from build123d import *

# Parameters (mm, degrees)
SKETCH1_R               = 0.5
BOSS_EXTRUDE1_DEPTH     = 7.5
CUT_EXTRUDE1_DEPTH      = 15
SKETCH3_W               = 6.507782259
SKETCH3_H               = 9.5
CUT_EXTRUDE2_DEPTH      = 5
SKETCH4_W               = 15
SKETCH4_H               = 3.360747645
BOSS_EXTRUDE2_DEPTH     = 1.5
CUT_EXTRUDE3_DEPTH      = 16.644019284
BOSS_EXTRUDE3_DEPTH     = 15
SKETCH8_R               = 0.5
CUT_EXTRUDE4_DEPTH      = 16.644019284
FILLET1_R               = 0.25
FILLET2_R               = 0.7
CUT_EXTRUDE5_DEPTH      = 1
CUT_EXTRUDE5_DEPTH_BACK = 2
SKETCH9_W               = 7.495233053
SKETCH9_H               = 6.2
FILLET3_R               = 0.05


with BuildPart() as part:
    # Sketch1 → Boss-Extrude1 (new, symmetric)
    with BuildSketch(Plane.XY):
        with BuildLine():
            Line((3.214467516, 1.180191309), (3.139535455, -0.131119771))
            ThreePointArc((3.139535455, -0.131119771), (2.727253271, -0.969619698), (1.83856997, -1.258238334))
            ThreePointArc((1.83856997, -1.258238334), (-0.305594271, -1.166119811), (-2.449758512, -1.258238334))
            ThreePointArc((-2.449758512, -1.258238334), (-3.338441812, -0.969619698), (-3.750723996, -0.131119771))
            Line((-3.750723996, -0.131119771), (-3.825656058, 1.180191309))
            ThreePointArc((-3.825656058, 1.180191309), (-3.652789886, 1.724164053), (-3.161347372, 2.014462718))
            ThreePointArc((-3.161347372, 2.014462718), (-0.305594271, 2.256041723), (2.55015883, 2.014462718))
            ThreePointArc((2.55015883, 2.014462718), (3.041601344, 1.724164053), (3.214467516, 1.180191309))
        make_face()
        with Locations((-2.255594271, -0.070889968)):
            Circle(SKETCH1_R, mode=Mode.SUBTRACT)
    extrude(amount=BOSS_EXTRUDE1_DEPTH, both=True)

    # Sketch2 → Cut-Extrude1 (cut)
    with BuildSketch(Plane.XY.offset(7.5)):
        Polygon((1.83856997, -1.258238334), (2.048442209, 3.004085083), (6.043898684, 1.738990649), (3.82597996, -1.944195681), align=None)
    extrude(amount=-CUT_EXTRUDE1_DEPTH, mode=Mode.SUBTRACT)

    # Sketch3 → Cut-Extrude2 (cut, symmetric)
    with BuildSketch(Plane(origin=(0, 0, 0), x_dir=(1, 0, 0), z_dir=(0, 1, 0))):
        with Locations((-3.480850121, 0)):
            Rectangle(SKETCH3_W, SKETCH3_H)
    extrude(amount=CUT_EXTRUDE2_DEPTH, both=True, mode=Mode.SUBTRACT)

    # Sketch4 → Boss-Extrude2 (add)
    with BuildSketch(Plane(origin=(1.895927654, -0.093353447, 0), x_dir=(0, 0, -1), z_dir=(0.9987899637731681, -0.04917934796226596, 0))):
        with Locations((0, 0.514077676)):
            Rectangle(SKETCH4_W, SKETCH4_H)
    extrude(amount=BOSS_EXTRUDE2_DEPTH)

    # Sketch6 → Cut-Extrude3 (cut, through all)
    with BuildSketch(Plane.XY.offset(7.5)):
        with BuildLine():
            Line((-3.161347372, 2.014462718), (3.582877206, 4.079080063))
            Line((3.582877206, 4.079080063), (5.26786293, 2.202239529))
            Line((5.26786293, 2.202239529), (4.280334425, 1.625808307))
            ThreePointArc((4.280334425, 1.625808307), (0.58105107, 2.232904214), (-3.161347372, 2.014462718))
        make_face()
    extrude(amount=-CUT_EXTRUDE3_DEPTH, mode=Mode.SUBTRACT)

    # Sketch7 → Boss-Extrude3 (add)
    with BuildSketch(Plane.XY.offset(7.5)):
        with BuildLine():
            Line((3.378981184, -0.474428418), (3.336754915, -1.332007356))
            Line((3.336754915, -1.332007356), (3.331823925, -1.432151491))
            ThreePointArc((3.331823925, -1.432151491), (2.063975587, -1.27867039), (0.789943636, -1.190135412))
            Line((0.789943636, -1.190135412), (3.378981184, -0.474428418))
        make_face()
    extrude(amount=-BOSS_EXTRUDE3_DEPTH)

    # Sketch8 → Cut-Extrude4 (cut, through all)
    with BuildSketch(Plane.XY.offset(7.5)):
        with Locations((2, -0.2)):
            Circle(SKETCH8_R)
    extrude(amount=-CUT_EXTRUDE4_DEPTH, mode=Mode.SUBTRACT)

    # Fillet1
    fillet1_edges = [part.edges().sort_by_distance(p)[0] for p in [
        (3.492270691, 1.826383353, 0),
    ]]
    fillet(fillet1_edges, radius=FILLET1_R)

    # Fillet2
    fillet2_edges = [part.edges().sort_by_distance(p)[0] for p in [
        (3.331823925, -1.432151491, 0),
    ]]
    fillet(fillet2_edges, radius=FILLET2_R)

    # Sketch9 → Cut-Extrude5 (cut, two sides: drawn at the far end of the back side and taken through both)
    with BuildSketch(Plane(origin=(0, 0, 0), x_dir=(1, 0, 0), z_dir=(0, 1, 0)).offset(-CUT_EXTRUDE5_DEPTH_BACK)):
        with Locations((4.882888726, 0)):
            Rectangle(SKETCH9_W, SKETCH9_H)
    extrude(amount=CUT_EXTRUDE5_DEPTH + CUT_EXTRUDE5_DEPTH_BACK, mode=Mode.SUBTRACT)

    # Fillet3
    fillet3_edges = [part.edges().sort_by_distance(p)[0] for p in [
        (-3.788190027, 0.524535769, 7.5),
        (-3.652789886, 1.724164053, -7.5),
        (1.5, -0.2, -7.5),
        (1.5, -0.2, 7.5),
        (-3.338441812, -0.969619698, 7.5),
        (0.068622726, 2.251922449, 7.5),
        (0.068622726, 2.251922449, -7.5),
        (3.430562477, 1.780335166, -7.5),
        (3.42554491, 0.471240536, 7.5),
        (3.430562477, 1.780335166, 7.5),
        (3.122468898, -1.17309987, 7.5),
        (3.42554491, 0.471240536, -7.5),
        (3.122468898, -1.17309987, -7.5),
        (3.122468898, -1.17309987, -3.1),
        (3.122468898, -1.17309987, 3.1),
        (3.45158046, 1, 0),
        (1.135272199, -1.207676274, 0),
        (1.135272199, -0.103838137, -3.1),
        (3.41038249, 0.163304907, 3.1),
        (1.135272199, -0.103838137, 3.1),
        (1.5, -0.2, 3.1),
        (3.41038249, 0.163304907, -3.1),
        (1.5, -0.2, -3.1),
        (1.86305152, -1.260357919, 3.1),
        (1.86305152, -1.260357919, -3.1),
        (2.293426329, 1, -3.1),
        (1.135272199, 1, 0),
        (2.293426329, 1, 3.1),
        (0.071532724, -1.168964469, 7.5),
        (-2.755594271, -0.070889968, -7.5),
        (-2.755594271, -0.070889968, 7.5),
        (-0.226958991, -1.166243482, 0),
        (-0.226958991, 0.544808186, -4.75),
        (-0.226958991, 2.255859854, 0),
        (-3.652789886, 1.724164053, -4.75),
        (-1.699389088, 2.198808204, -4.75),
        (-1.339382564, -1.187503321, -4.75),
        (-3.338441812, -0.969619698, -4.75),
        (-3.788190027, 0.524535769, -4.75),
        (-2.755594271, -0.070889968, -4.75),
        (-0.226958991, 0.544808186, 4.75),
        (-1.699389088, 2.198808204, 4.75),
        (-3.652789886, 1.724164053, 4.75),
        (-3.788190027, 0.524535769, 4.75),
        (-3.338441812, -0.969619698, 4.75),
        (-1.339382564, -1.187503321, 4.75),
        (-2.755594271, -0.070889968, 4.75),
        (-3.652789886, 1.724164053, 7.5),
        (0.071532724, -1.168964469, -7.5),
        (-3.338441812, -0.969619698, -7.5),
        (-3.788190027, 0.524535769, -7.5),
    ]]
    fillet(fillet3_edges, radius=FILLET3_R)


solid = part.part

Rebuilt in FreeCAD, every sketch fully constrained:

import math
import FreeCAD as App
import Part
import Sketcher


def edges_at(feature, points):
    """Names of the edges that pass closest to the given points."""
    edges = feature.Shape.Edges
    near = lambda p: min(range(len(edges)), key=lambda i: edges[i].distToShape(Part.Vertex(*p))[0])
    return sorted({f"Edge{near(p) + 1}" for p in points})

doc = App.newDocument("Part")
body = doc.addObject("PartDesign::Body", "Body")

# Sketch on XY plane
sketch1 = doc.addObject("Sketcher::SketchObject", "Sketch")
body.addObject(sketch1)
sketch1.AttachmentSupport = (doc.XY_Plane, [""])
sketch1.MapMode = "FlatFace"
sketch1.addGeometry([
    Part.LineSegment(App.Vector(3.139535, -0.13112, 0), App.Vector(3.214468, 1.180191, 0)),  # 0
    Part.ArcOfCircle(Part.Circle(App.Vector(2.41577, 1.225831, 0), App.Vector(0, 0, 1), 0.8), math.radians(-3.270488), math.radians(80.329289)),  # 1
    Part.ArcOfCircle(Part.Circle(App.Vector(-0.305594, -14.743958, 0), App.Vector(0, 0, 1), 17), math.radians(80.329289), math.radians(99.670711)),  # 2
    Part.ArcOfCircle(Part.Circle(App.Vector(-3.026959, 1.225831, 0), App.Vector(0, 0, 1), 0.8), math.radians(99.670711), math.radians(183.270488)),  # 3
    Part.LineSegment(App.Vector(-3.825656, 1.180191, 0), App.Vector(-3.750724, -0.13112, 0)),  # 4
    Part.ArcOfCircle(Part.Circle(App.Vector(-2.552678, -0.06266, 0), App.Vector(0, 0, 1), 1.2), math.radians(-176.729512), math.radians(-85.079893)),  # 5
    Part.ArcOfCircle(Part.Circle(App.Vector(-0.305594, -26.16612, 0), App.Vector(0, 0, 1), 25), math.radians(85.079893), math.radians(94.920107)),  # 6
    Part.ArcOfCircle(Part.Circle(App.Vector(1.94149, -0.06266, 0), App.Vector(0, 0, 1), 1.2), math.radians(-94.920107), math.radians(-3.270488)),  # 7
    Part.Circle(App.Vector(-2.255594, -0.07089, 0), App.Vector(0, 0, 1), 0.5),  # 8
], False)
sketch1.addConstraint([
    Sketcher.Constraint("Tangent", 0, 2, 1, 1),
    Sketcher.Constraint("Tangent", 1, 2, 2, 1),
    Sketcher.Constraint("Tangent", 2, 2, 3, 1),
    Sketcher.Constraint("Tangent", 3, 2, 4, 1),
    Sketcher.Constraint("Tangent", 4, 2, 5, 1),
    Sketcher.Constraint("Tangent", 5, 2, 6, 2),
    Sketcher.Constraint("Tangent", 6, 1, 7, 1),
    Sketcher.Constraint("Tangent", 7, 2, 0, 1),
    Sketcher.Constraint("Equal", 1, 3),
    Sketcher.Constraint("Equal", 5, 7),
    Sketcher.Constraint("Horizontal", 1, 3, 3, 3),
    Sketcher.Constraint("Horizontal", 5, 3, 7, 3),
    Sketcher.Constraint("Horizontal", 0, 2, 3, 2),
    Sketcher.Constraint("Diameter", 8, 1.0),
    Sketcher.Constraint("Radius", 2, 17.0),
    Sketcher.Constraint("Radius", 6, 25.0),
    Sketcher.Constraint("Radius", 1, 0.8),
    Sketcher.Constraint("Radius", 5, 1.2),
    Sketcher.Constraint("DistanceX", 8, 3, 2, 3, 1.95),
    Sketcher.Constraint("DistanceY", 2, 3, 5, 3, 14.681298),
    Sketcher.Constraint("DistanceX", 3, 3, 5, 2, 0.5772),
    Sketcher.Constraint("DistanceY", 6, 1, 1, 2, 3.272701),
    Sketcher.Constraint("DistanceX", -1, 1, 1, 3, 2.41577),
    Sketcher.Constraint("DistanceY", -1, 1, 1, 3, 1.225831),
    Sketcher.Constraint("DistanceY", 8, 3, -1, 1, 0.07089),
])
pad1 = doc.addObject("PartDesign::Pad", "Pad")
body.addObject(pad1)
pad1.Profile = sketch1
pad1.Length = 15
pad1.Midplane = True

# Sketch on XY plane
sketch2 = doc.addObject("Sketcher::SketchObject", "Sketch001")
body.addObject(sketch2)
sketch2.AttachmentSupport = (doc.XY_Plane, [""])
sketch2.MapMode = "FlatFace"
sketch2.AttachmentOffset = App.Placement(App.Vector(0, 0, 7.5), App.Rotation())
sketch2.addGeometry([
    Part.LineSegment(App.Vector(2.048442, 3.004085, 0), App.Vector(1.83857, -1.258238, 0)),
    Part.LineSegment(App.Vector(1.83857, -1.258238, 0), App.Vector(3.82598, -1.944196, 0)),
    Part.LineSegment(App.Vector(3.82598, -1.944196, 0), App.Vector(6.043899, 1.738991, 0)),
    Part.LineSegment(App.Vector(6.043899, 1.738991, 0), App.Vector(2.048442, 3.004085, 0)),
], False)
sketch2.addConstraint([
    Sketcher.Constraint("Coincident", 0, 2, 1, 1),
    Sketcher.Constraint("Coincident", 1, 2, 2, 1),
    Sketcher.Constraint("Coincident", 2, 2, 3, 1),
    Sketcher.Constraint("Coincident", 3, 2, 0, 1),
    Sketcher.Constraint("DistanceX", -1, 1, 2, 2, 6.043899),
    Sketcher.Constraint("Distance", 1, 2.10246),
    Sketcher.Constraint("Distance", 2, 4.299421),
    Sketcher.Constraint("Distance", 3, 4.190959),
    Sketcher.Constraint("DistanceX", -1, 1, 0, 2, 1.83857),
    Sketcher.Constraint("DistanceY", 0, 2, -1, 1, 1.258238),
    Sketcher.Constraint("DistanceX", -1, 1, 1, 2, 3.82598),
    Sketcher.Constraint("DistanceY", 1, 2, 3, 2, 4.948281),
])
pocket1 = doc.addObject("PartDesign::Pocket", "Pocket")
body.addObject(pocket1)
pocket1.Profile = sketch2
pocket1.Length = 15

# Sketch on XZ plane
sketch3 = doc.addObject("Sketcher::SketchObject", "Sketch002")
body.addObject(sketch3)
sketch3.AttachmentSupport = (doc.XZ_Plane, [""])
sketch3.MapMode = "FlatFace"
sketch3.addGeometry([
    Part.LineSegment(App.Vector(-6.734741, -4.75, 0), App.Vector(-6.734741, 4.75, 0)),
    Part.LineSegment(App.Vector(-6.734741, 4.75, 0), App.Vector(-0.226959, 4.75, 0)),
    Part.LineSegment(App.Vector(-0.226959, 4.75, 0), App.Vector(-0.226959, -4.75, 0)),
    Part.LineSegment(App.Vector(-0.226959, -4.75, 0), App.Vector(-6.734741, -4.75, 0)),
], False)
sketch3.addConstraint([
    Sketcher.Constraint("Coincident", 0, 2, 1, 1),
    Sketcher.Constraint("Coincident", 1, 2, 2, 1),
    Sketcher.Constraint("Coincident", 2, 2, 3, 1),
    Sketcher.Constraint("Coincident", 3, 2, 0, 1),
    Sketcher.Constraint("Vertical", 0),
    Sketcher.Constraint("Horizontal", 1),
    Sketcher.Constraint("Vertical", 2),
    Sketcher.Constraint("Horizontal", 3),
    Sketcher.Constraint("DistanceY", 0, 1, 0, 2, 9.5),
    Sketcher.Constraint("DistanceY", -1, 1, 0, 2, 4.75),
    Sketcher.Constraint("DistanceX", 1, 1, 1, 2, 6.507782),
    Sketcher.Constraint("DistanceX", 0, 2, -1, 1, 6.734741),
])
pocket2 = doc.addObject("PartDesign::Pocket", "Pocket001")
body.addObject(pocket2)
pocket2.Profile = sketch3
pocket2.Length = 10
pocket2.Midplane = True

# Sketch on an angled plane
sketch4 = doc.addObject("Sketcher::SketchObject", "Sketch003")
body.addObject(sketch4)
sketch4.Placement = App.Placement(App.Vector(1.895928, -0.093353, 0), App.Rotation(App.Vector(0, 0, -1), App.Vector(0.049179348, 0.998789964, 0), App.Vector(0.998789964, -0.049179348, 0), "ZXY"))
sketch4.addGeometry([
    Part.LineSegment(App.Vector(-7.5, 2.194451, 0), App.Vector(-7.5, -1.166296, 0)),
    Part.LineSegment(App.Vector(-7.5, -1.166296, 0), App.Vector(7.5, -1.166296, 0)),
    Part.LineSegment(App.Vector(7.5, -1.166296, 0), App.Vector(7.5, 2.194451, 0)),
    Part.LineSegment(App.Vector(7.5, 2.194451, 0), App.Vector(-7.5, 2.194451, 0)),
], False)
sketch4.addConstraint([
    Sketcher.Constraint("Coincident", 0, 2, 1, 1),
    Sketcher.Constraint("Coincident", 1, 2, 2, 1),
    Sketcher.Constraint("Coincident", 2, 2, 3, 1),
    Sketcher.Constraint("Coincident", 3, 2, 0, 1),
    Sketcher.Constraint("Vertical", 0),
    Sketcher.Constraint("Horizontal", 1),
    Sketcher.Constraint("Vertical", 2),
    Sketcher.Constraint("Horizontal", 3),
    Sketcher.Constraint("DistanceX", 1, 1, 1, 2, 15.0),
    Sketcher.Constraint("DistanceX", 0, 2, -1, 1, 7.5),
    Sketcher.Constraint("DistanceY", 0, 2, 0, 1, 3.360748),
    Sketcher.Constraint("DistanceY", -1, 1, 2, 2, 2.194451),
])
pad2 = doc.addObject("PartDesign::Pad", "Pad001")
body.addObject(pad2)
pad2.Profile = sketch4
pad2.Length = 1.5

# Sketch on XY plane
sketch5 = doc.addObject("Sketcher::SketchObject", "Sketch004")
body.addObject(sketch5)
sketch5.AttachmentSupport = (doc.XY_Plane, [""])
sketch5.MapMode = "FlatFace"
sketch5.AttachmentOffset = App.Placement(App.Vector(0, 0, 7.5), App.Rotation())
sketch5.addGeometry([
    Part.LineSegment(App.Vector(3.582877, 4.07908, 0), App.Vector(-3.161347, 2.014463, 0)),
    Part.ArcOfCircle(Part.Circle(App.Vector(-0.305594, -14.743958, 0), App.Vector(0, 0, 1), 17), math.radians(74.349984), math.radians(99.670711)),
    Part.LineSegment(App.Vector(4.280334, 1.625808, 0), App.Vector(5.267863, 2.20224, 0)),
    Part.LineSegment(App.Vector(5.267863, 2.20224, 0), App.Vector(3.582877, 4.07908, 0)),
], False)
sketch5.addConstraint([
    Sketcher.Constraint("Coincident", 0, 2, 1, 2),
    Sketcher.Constraint("Coincident", 1, 1, 2, 1),
    Sketcher.Constraint("Coincident", 2, 2, 3, 1),
    Sketcher.Constraint("Coincident", 3, 2, 0, 1),
    Sketcher.Constraint("Radius", 1, 17.0),
    Sketcher.Constraint("Distance", 0, 7.05317),
    Sketcher.Constraint("DistanceY", 1, 3, -1, 1, 14.743958),
    Sketcher.Constraint("DistanceY", -1, 1, 1, 1, 1.625808),
    Sketcher.Constraint("DistanceY", -1, 1, 2, 2, 2.20224),
    Sketcher.Constraint("DistanceY", -1, 1, 3, 2, 4.07908),
    Sketcher.Constraint("DistanceY", 1, 3, 0, 2, 16.758421),
    Sketcher.Constraint("DistanceX", 1, 1, 2, 2, 0.987529),
    Sketcher.Constraint("DistanceX", 1, 3, -1, 1, 0.305594),
])
pocket3 = doc.addObject("PartDesign::Pocket", "Pocket002")
body.addObject(pocket3)
pocket3.Profile = sketch5
pocket3.Type = "ThroughAll"

# Sketch on XY plane
sketch6 = doc.addObject("Sketcher::SketchObject", "Sketch005")
body.addObject(sketch6)
sketch6.AttachmentSupport = (doc.XY_Plane, [""])
sketch6.MapMode = "FlatFace"
sketch6.AttachmentOffset = App.Placement(App.Vector(0, 0, 7.5), App.Rotation())
sketch6.addGeometry([
    Part.LineSegment(App.Vector(3.336755, -1.332007, 0), App.Vector(3.378981, -0.474428, 0)),
    Part.LineSegment(App.Vector(3.378981, -0.474428, 0), App.Vector(0.789944, -1.190135, 0)),
    Part.ArcOfCircle(Part.Circle(App.Vector(-0.305594, -26.16612, 0), App.Vector(0, 0, 1), 25), math.radians(81.633955), math.radians(87.488408)),
    Part.LineSegment(App.Vector(3.331824, -1.432151, 0), App.Vector(3.336755, -1.332007, 0)),
], False)
sketch6.addConstraint([
    Sketcher.Constraint("Coincident", 0, 2, 1, 1),
    Sketcher.Constraint("Coincident", 1, 2, 2, 2),
    Sketcher.Constraint("Coincident", 2, 1, 3, 1),
    Sketcher.Constraint("Coincident", 3, 2, 0, 1),
    Sketcher.Constraint("Parallel", 0, 3),
    Sketcher.Constraint("Radius", 2, 25.0),
    Sketcher.Constraint("Distance", 1, 2.686141),
    Sketcher.Constraint("DistanceY", 2, 3, -1, 1, 26.16612),
    Sketcher.Constraint("DistanceX", -1, 1, 0, 2, 3.378981),
    Sketcher.Constraint("DistanceY", 0, 2, -1, 1, 0.474428),
    Sketcher.Constraint("DistanceY", 2, 1, -1, 1, 1.432151),
    Sketcher.Constraint("DistanceX", 1, 2, 2, 1, 2.54188),
    Sketcher.Constraint("DistanceY", 3, 2, 0, 2, 0.857579),
])
pad3 = doc.addObject("PartDesign::Pad", "Pad002")
body.addObject(pad3)
pad3.Profile = sketch6
pad3.Length = 15
pad3.Reversed = True

# Sketch on XY plane
sketch7 = doc.addObject("Sketcher::SketchObject", "Sketch006")
body.addObject(sketch7)
sketch7.AttachmentSupport = (doc.XY_Plane, [""])
sketch7.MapMode = "FlatFace"
sketch7.AttachmentOffset = App.Placement(App.Vector(0, 0, 7.5), App.Rotation())
sketch7.addGeometry(Part.Circle(App.Vector(2, -0.2, 0), App.Vector(0, 0, 1), 0.5), False)
sketch7.addConstraint([
    Sketcher.Constraint("Diameter", 0, 1.0),
    Sketcher.Constraint("DistanceX", -1, 1, 0, 3, 2.0),
    Sketcher.Constraint("DistanceY", 0, 3, -1, 1, 0.2),
])
pocket4 = doc.addObject("PartDesign::Pocket", "Pocket003")
body.addObject(pocket4)
pocket4.Profile = sketch7
pocket4.Type = "ThroughAll"
doc.recompute()

fillet = doc.addObject("PartDesign::Fillet", "Fillet")
body.addObject(fillet)
fillet.Base = (pocket4, edges_at(pocket4, [(3.492, 1.826, 0)]))
fillet.Radius = 0.25
doc.recompute()

fillet2 = doc.addObject("PartDesign::Fillet", "Fillet001")
body.addObject(fillet2)
fillet2.Base = (fillet, edges_at(fillet, [(3.332, -1.432, 0)]))
fillet2.Radius = 0.7

# Sketch on XZ plane
sketch8 = doc.addObject("Sketcher::SketchObject", "Sketch007")
body.addObject(sketch8)
sketch8.AttachmentSupport = (doc.XZ_Plane, [""])
sketch8.MapMode = "FlatFace"
sketch8.addGeometry([
    Part.LineSegment(App.Vector(1.135272, -3.1, 0), App.Vector(1.135272, 3.1, 0)),
    Part.LineSegment(App.Vector(1.135272, 3.1, 0), App.Vector(8.630505, 3.1, 0)),
    Part.LineSegment(App.Vector(8.630505, 3.1, 0), App.Vector(8.630505, -3.1, 0)),
    Part.LineSegment(App.Vector(8.630505, -3.1, 0), App.Vector(1.135272, -3.1, 0)),
], False)
sketch8.addConstraint([
    Sketcher.Constraint("Coincident", 0, 2, 1, 1),
    Sketcher.Constraint("Coincident", 1, 2, 2, 1),
    Sketcher.Constraint("Coincident", 2, 2, 3, 1),
    Sketcher.Constraint("Coincident", 3, 2, 0, 1),
    Sketcher.Constraint("Vertical", 0),
    Sketcher.Constraint("Horizontal", 1),
    Sketcher.Constraint("Vertical", 2),
    Sketcher.Constraint("Horizontal", 3),
    Sketcher.Constraint("DistanceY", 0, 1, 0, 2, 6.2),
    Sketcher.Constraint("DistanceY", -1, 1, 0, 2, 3.1),
    Sketcher.Constraint("DistanceX", 1, 1, 1, 2, 7.495233),
    Sketcher.Constraint("DistanceX", -1, 1, 0, 2, 1.135272),
])
pocket5 = doc.addObject("PartDesign::Pocket", "Pocket004")
body.addObject(pocket5)
pocket5.Profile = sketch8
pocket5.Type = "TwoLengths"
pocket5.Length = 1
pocket5.Length2 = 2
doc.recompute()

fillet3 = doc.addObject("PartDesign::Fillet", "Fillet002")
body.addObject(fillet3)
fillet3.Base = (pocket5, edges_at(pocket5, [
    (-3.788, 0.525, 7.5),
    (-3.653, 1.724, -7.5),
    (1.5, -0.2, -7.5),
    (1.5, -0.2, 7.5),
    (-3.338, -0.97, 7.5),
    (-0.582, 2.254, 7.5),
    (-0.582, 2.254, -7.5),
    (3.431, 1.78, -7.5),
    (3.426, 0.471, 7.5),
    (3.431, 1.78, 7.5),
    (3.122, -1.173, 7.5),
    (3.426, 0.471, -7.5),
    (3.122, -1.173, -7.5),
    (3.122, -1.173, -3.1),
    (3.122, -1.173, 3.1),
    (3.452, 1, 0),
    (1.135, -1.208, 0),
    (1.135, -0.104, -3.1),
    (3.41, 0.163, 3.1),
    (1.135, -0.104, 3.1),
    (1.5, -0.2, 3.1),
    (3.41, 0.163, -3.1),
    (1.5, -0.2, -3.1),
    (2.214, -1.293, 3.1),
    (2.214, -1.293, -3.1),
    (2.293, 1, -3.1),
    (1.135, 1, 0),
    (2.293, 1, 3.1),
    (-0.306, -1.166, 7.5),
    (-2.756, -0.071, -7.5),
    (-2.756, -0.071, 7.5),
    (-0.227, -1.166, 0),
    (-0.227, 0.545, -4.75),
    (-0.227, 2.256, 0),
    (-3.653, 1.724, -4.75),
    (-1.699, 2.199, -4.75),
    (-1.339, -1.188, -4.75),
    (-3.338, -0.97, -4.75),
    (-3.788, 0.525, -4.75),
    (-2.756, -0.071, -4.75),
    (-0.227, 0.545, 4.75),
    (-1.699, 2.199, 4.75),
    (-3.653, 1.724, 4.75),
    (-3.788, 0.525, 4.75),
    (-3.338, -0.97, 4.75),
    (-1.339, -1.188, 4.75),
    (-2.756, -0.071, 4.75),
    (-3.653, 1.724, 7.5),
    (-0.306, -1.166, -7.5),
    (-3.338, -0.97, -7.5),
    (-3.788, 0.525, -7.5),
]))
fillet3.Radius = 0.05

doc.recompute()
